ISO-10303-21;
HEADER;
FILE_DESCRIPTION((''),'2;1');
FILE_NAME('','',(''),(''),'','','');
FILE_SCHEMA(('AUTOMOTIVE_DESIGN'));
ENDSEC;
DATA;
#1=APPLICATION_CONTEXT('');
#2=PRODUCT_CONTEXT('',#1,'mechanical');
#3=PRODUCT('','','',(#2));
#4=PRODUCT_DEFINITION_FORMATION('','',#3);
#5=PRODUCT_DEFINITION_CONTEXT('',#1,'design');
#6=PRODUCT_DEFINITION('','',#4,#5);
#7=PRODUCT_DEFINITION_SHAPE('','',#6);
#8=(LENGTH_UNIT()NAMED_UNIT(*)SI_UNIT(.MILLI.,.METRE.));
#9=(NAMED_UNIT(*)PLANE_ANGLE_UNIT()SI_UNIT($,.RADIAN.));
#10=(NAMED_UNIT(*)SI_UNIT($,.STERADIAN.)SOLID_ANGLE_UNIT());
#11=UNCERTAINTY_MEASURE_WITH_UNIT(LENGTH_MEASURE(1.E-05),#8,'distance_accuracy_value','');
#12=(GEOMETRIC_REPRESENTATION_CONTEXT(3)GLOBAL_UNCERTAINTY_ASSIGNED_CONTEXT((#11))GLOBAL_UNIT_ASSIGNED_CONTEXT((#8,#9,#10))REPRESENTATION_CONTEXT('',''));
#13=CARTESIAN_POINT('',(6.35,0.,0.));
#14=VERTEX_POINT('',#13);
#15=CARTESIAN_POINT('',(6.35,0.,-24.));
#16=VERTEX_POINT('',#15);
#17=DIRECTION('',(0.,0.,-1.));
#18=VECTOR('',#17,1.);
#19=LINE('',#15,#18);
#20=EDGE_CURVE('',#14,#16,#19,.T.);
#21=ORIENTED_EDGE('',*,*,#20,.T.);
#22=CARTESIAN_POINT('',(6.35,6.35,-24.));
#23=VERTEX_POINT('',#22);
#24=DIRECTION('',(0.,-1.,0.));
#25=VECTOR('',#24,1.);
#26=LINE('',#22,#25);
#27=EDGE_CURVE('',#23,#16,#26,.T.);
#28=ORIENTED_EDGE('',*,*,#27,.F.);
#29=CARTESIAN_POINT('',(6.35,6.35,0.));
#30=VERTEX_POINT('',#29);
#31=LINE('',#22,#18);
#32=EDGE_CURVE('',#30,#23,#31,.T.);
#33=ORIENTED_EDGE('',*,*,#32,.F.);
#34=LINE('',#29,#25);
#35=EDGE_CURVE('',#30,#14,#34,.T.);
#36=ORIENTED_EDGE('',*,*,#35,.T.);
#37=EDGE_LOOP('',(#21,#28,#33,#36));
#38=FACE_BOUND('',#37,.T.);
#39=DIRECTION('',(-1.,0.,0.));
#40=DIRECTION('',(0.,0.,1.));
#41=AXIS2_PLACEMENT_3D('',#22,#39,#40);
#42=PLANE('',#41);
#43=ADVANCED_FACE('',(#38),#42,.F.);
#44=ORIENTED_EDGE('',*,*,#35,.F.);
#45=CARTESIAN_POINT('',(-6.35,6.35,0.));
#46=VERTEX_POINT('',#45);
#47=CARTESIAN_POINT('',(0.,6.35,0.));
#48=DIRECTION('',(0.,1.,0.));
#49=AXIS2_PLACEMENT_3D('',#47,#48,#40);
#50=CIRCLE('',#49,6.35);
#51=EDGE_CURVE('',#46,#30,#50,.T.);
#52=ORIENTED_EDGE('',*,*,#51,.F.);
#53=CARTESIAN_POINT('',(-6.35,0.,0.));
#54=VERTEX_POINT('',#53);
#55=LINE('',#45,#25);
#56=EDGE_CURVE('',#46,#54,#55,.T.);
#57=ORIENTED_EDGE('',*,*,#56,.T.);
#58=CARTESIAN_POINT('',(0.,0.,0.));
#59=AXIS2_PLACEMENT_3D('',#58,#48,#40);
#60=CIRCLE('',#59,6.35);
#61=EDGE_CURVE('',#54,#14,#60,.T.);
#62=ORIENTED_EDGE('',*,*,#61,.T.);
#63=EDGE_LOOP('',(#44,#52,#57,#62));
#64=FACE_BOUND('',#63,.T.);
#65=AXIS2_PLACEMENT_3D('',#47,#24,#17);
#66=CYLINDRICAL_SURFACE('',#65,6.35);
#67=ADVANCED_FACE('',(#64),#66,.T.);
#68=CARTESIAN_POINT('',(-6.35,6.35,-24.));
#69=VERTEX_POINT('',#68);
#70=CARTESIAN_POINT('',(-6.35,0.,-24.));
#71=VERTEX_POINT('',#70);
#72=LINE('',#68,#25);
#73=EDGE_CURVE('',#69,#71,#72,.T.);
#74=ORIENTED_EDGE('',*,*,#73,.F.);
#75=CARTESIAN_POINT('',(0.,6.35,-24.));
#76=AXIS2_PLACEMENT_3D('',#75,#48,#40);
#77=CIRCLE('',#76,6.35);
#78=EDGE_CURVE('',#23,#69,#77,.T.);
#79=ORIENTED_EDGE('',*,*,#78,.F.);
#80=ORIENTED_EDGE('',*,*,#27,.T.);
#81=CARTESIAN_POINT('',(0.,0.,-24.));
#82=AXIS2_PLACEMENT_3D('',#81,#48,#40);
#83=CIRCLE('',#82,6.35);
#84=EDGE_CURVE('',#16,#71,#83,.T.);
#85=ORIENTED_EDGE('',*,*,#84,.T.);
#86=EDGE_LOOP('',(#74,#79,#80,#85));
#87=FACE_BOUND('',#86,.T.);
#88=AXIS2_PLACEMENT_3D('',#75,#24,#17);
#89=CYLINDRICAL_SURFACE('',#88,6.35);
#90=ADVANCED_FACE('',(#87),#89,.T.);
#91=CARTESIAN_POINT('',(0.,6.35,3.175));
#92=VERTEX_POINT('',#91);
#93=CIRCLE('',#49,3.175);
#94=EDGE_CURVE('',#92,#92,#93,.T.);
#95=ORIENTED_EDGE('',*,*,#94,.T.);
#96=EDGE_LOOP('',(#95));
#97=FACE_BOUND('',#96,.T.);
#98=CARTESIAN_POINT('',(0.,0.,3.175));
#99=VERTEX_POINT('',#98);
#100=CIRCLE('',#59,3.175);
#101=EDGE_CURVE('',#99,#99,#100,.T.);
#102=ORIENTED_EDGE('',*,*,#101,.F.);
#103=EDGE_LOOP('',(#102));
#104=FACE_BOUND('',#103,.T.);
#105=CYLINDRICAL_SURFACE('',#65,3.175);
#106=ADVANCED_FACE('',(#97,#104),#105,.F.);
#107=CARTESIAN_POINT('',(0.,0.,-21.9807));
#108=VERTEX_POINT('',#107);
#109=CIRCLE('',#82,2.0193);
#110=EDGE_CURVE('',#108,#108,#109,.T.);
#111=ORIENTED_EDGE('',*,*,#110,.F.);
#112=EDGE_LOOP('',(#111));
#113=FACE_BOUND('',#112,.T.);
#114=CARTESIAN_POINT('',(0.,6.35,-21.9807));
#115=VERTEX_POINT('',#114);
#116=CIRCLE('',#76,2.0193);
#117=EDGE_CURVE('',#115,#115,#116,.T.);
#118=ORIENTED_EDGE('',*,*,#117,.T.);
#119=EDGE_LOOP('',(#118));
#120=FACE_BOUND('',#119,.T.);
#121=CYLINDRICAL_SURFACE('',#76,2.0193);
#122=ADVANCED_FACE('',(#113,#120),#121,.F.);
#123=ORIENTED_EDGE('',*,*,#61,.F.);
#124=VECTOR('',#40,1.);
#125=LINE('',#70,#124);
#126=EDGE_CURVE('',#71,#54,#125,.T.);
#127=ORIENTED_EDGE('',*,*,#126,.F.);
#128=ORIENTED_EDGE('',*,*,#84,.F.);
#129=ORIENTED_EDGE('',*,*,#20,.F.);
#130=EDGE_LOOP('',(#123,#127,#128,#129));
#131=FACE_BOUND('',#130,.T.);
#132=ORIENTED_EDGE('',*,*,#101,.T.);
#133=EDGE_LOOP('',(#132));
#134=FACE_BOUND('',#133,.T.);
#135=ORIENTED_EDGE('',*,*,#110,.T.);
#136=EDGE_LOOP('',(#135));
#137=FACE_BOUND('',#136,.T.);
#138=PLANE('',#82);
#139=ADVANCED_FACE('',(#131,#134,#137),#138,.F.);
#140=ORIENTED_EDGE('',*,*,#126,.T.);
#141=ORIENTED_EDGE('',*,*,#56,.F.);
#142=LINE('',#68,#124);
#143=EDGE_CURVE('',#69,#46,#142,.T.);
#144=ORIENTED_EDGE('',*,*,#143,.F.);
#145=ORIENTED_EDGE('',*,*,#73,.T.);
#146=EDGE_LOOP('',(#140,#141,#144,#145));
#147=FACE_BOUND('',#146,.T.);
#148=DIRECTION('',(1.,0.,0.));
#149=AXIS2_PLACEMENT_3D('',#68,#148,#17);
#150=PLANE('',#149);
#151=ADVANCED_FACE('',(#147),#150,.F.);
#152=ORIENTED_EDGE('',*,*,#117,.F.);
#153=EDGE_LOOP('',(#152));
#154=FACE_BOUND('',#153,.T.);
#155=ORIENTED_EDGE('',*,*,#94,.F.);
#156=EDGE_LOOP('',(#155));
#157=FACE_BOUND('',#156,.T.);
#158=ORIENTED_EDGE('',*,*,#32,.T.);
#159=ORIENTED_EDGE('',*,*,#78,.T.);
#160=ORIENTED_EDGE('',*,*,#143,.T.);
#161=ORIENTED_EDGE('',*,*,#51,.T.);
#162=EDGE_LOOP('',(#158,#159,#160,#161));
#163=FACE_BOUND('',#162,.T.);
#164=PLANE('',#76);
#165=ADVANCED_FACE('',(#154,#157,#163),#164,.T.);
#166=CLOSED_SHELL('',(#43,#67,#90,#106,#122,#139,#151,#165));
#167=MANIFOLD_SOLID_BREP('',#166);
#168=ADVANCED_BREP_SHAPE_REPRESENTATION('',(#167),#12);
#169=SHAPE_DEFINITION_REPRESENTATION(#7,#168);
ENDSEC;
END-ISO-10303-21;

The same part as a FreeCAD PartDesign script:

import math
import FreeCAD as App
import Part
import Sketcher
from FreeCAD import Vector
Q = App.Units.Quantity

doc = App.newDocument("Part")
body = doc.addObject("PartDesign::Body", "Body")

# Sketch on XZ plane
sketch1 = body.newObject("Sketcher::SketchObject", "Sketch")
sketch1.AttachmentSupport = (doc.getObject("XZ_Plane"), [""])
sketch1.MapMode = "FlatFace"
sketch1.addGeometry(Part.LineSegment(Vector(6.35, 0, 0), Vector(6.35, -24, 0)), False)
sketch1.addGeometry(Part.ArcOfCircle(Part.Circle(Vector(0, -24, 0), Vector(0, 0, 1), 6.35), math.radians(180), math.radians(360)), False)
sketch1.addGeometry(Part.LineSegment(Vector(-6.35, -24, 0), Vector(-6.35, 0, 0)), False)
sketch1.addGeometry(Part.ArcOfCircle(Part.Circle(Vector(0, 0, 0), Vector(0, 0, 1), 6.35), math.radians(0), math.radians(180)), False)
sketch1.addGeometry(Part.Circle(Vector(0, 0, 0), Vector(0, 0, 1), 3.175), False)
sketch1.addConstraint(Sketcher.Constraint("Tangent", 0, 2, 1, 2))
sketch1.addConstraint(Sketcher.Constraint("Tangent", 1, 1, 2, 1))
sketch1.addConstraint(Sketcher.Constraint("Tangent", 2, 2, 3, 2))
sketch1.addConstraint(Sketcher.Constraint("Tangent", 3, 1, 0, 1))
sketch1.addConstraint(Sketcher.Constraint("Vertical", 0))
sketch1.addConstraint(Sketcher.Constraint("Vertical", 2))
sketch1.addConstraint(Sketcher.Constraint("Coincident", 3, 3, -1, 1))
sketch1.addConstraint(Sketcher.Constraint("Coincident", 4, 3, -1, 1))
sketch1.addConstraint(Sketcher.Constraint("Diameter", 4, Q("0.25 in")))
sketch1.addConstraint(Sketcher.Constraint("Radius", 1, Q("0.25 in")))
sketch1.addConstraint(Sketcher.Constraint("DistanceY", 0, 2, 0, 1, Q("24 mm")))
pad1 = body.newObject("PartDesign::Pad", "Pad")
pad1.Profile = sketch1
pad1.Length = Q("0.25 in")
pad1.Reversed = True

# Sketch on XZ plane
sketch2 = body.newObject("Sketcher::SketchObject", "Sketch001")
sketch2.AttachmentSupport = (doc.getObject("XZ_Plane"), [""])
sketch2.MapMode = "FlatFace"
sketch2.AttachmentOffset = App.Placement(Vector(0, 0, -0.25 * 25.4), App.Rotation())
sketch2.addGeometry(Part.Circle(Vector(0, -24, 0), Vector(0, 0, 1), 2.0193), False)
sketch2.addConstraint(Sketcher.Constraint("PointOnObject", 0, 3, -2))
sketch2.addConstraint(Sketcher.Constraint("Diameter", 0, Q("0.159 in")))
sketch2.addConstraint(Sketcher.Constraint("DistanceY", 0, 3, -1, 1, Q("24 mm")))
doc.recompute()
hole = body.newObject("PartDesign::Hole", "Hole")
hole.Profile = sketch2
hole.ThreadType = "None"
hole.Diameter = Q("0.159 in")
hole.DepthType = "ThroughAll"
hole.Reversed = True

doc.recompute()
